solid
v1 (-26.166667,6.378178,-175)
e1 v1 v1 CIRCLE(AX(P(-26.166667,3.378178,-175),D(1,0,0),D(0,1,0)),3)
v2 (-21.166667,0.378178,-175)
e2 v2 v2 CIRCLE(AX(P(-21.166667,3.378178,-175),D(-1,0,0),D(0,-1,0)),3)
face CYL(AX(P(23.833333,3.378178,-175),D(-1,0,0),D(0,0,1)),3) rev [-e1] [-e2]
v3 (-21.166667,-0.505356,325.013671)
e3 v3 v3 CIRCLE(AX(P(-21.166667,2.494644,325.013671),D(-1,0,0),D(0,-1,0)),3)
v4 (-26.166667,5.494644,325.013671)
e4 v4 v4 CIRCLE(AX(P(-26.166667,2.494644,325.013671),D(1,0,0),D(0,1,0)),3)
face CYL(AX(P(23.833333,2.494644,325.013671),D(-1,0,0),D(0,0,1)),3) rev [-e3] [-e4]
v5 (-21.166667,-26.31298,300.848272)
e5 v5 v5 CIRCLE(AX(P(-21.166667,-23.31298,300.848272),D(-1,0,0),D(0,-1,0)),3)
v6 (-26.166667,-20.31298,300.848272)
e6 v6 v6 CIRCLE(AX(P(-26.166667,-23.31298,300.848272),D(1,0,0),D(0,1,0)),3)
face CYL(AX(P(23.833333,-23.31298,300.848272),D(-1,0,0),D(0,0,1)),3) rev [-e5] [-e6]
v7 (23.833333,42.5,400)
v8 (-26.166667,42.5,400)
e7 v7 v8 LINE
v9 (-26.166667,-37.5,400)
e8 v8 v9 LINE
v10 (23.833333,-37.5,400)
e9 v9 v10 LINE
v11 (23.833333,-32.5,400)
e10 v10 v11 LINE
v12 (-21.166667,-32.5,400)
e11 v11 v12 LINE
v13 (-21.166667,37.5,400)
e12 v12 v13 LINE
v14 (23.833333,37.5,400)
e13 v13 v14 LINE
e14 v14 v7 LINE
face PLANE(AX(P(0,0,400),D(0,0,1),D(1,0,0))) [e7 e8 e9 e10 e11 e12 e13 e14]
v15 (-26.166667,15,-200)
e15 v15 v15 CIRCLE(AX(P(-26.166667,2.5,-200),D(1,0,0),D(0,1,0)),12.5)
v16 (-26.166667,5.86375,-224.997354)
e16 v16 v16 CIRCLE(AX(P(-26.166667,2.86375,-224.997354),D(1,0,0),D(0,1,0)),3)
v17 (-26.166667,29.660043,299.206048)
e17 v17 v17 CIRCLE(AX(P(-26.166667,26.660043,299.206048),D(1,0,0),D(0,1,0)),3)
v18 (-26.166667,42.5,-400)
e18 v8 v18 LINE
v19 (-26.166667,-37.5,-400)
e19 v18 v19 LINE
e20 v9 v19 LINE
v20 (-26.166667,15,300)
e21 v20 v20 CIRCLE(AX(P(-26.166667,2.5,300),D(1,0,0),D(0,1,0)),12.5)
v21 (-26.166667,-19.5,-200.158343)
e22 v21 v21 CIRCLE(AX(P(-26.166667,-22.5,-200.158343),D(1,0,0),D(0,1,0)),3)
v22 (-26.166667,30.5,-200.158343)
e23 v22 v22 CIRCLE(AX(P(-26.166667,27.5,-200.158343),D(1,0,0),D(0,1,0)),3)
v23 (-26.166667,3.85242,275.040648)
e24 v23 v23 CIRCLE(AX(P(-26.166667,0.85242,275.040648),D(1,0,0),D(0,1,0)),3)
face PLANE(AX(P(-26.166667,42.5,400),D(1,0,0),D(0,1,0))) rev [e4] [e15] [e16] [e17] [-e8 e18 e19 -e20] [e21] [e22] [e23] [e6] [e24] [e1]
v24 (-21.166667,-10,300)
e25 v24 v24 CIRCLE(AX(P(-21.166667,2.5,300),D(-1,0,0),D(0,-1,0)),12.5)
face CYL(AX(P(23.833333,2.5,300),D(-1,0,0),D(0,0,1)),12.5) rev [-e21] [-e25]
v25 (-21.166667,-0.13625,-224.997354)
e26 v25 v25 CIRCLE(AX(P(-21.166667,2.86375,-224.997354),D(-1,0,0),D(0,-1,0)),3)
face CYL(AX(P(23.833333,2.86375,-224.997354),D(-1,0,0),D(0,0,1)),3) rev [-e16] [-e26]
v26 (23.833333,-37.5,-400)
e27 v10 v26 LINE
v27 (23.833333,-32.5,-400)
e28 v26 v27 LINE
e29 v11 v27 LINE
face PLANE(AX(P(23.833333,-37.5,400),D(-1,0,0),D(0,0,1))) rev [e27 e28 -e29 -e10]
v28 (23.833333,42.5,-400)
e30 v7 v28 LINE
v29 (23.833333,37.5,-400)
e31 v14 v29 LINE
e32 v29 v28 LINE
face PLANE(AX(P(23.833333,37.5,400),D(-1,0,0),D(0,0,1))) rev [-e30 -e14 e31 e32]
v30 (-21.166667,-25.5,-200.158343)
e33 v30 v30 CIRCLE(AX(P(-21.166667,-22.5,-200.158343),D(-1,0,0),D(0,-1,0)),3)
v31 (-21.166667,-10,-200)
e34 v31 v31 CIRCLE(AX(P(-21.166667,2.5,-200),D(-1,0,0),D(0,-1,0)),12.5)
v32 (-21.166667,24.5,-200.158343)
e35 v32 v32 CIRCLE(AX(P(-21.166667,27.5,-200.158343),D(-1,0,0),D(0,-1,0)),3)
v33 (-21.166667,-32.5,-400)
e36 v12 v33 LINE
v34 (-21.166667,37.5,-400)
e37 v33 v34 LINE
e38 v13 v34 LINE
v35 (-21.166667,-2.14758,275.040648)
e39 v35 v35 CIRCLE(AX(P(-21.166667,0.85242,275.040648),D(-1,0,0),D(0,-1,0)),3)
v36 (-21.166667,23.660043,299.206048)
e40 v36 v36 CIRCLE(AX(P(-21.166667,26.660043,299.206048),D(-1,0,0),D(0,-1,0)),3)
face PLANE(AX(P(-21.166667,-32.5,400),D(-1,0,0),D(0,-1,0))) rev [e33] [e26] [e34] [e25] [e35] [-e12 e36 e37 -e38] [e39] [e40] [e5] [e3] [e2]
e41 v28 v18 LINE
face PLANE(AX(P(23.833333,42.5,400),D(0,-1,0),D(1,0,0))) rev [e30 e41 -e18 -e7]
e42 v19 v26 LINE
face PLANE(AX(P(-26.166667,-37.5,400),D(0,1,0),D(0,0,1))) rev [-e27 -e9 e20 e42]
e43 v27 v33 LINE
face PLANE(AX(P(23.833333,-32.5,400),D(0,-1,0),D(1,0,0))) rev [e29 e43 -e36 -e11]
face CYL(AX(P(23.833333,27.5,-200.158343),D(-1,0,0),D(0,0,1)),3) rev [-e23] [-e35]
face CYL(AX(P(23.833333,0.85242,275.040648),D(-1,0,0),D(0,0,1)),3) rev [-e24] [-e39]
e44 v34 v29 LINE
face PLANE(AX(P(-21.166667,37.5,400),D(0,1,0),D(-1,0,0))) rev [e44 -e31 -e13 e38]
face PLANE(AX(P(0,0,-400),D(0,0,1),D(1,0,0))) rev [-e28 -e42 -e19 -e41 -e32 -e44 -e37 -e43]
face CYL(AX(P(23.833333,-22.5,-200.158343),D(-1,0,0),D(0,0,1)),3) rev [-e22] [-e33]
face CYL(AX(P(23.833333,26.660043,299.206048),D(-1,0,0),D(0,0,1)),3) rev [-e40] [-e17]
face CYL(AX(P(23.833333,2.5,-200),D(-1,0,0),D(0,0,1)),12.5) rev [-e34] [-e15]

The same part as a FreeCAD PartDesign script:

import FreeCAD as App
import Part
import Sketcher

V = App.Vector


def add_polygon(sketch, points):
    """Adds a closed chain of lines whose ends are joined by coincident constraints."""
    first, n = sketch.GeometryCount, len(points)
    for a, b in zip(points, points[1:] + points[:1]):
        sketch.addGeometry(Part.LineSegment(App.Vector(*a, 0), App.Vector(*b, 0)), False)
    for i in range(n):
        sketch.addConstraint(Sketcher.Constraint("Coincident", first + i, 2, first + (i + 1) % n, 1))

doc = App.newDocument("Part")
body = doc.addObject("PartDesign::Body", "Body")

sketch1 = doc.addObject("Sketcher::SketchObject", "Sketch")
body.addObject(sketch1)
sketch1.AttachmentSupport = (doc.XY_Plane, [""])
sketch1.MapMode = "FlatFace"
add_polygon(sketch1, [(24, 42), (-26, 42), (-26, -38), (24, -38), (24, -32), (-21, -32), (-21, 38), (24, 38)])
sketch1.addConstraint([
    Sketcher.Constraint("Horizontal", 0),
    Sketcher.Constraint("Vertical", 1),
    Sketcher.Constraint("Horizontal", 2),
    Sketcher.Constraint("Vertical", 3),
    Sketcher.Constraint("Horizontal", 4),
    Sketcher.Constraint("Vertical", 5),
    Sketcher.Constraint("Horizontal", 6),
    Sketcher.Constraint("Vertical", 7),
    Sketcher.Constraint("Symmetric", 2, 2, 6, 2, -1),
    Sketcher.Constraint("Equal", 3, 7),
    Sketcher.Constraint("DistanceX", 0, 2, 0, 1, 50.0),
    Sketcher.Constraint("DistanceX", 4, 2, 4, 1, 45.0),
    Sketcher.Constraint("DistanceY", 1, 2, 1, 1, 80.0),
    Sketcher.Constraint("DistanceY", 3, 1, 3, 2, 5.0),
    Sketcher.Constraint("DistanceX", 0, 2, -1, 1, 26.166667),
])
pad1 = doc.addObject("PartDesign::Pad", "Pad")
body.addObject(pad1)
pad1.Profile = sketch1
pad1.Length = 800
pad1.Midplane = True

sketch2 = doc.addObject("Sketcher::SketchObject", "Sketch001")
body.addObject(sketch2)
sketch2.AttachmentSupport = (doc.YZ_Plane, [""])
sketch2.MapMode = "FlatFace"
sketch2.AttachmentOffset = App.Placement(V(0, 0, -26.166667), App.Rotation())
sketch2.addGeometry([
    Part.Circle(V(2, -200, 0), V(0, 0, 1), 12),
    Part.Circle(V(2, 300, 0), V(0, 0, 1), 12),
], False)
sketch2.addConstraint([
    Sketcher.Constraint("Equal", 0, 1),
    Sketcher.Constraint("Vertical", 0, 3, 1, 3),
    Sketcher.Constraint("Diameter", 0, 25.0),
    Sketcher.Constraint("DistanceY", 0, 3, -1, 1, 200.0),
    Sketcher.Constraint("DistanceY", -1, 1, 1, 3, 300.0),
    Sketcher.Constraint("DistanceX", -1, 1, 0, 3, 2.5),
])
pocket1 = doc.addObject("PartDesign::Pocket", "Pocket")
body.addObject(pocket1)
pocket1.Profile = sketch2
pocket1.Type = "ThroughAll"
pocket1.Midplane = True

sketch3 = doc.addObject("Sketcher::SketchObject", "Sketch002")
body.addObject(sketch3)
sketch3.AttachmentSupport = (doc.YZ_Plane, [""])
sketch3.MapMode = "FlatFace"
sketch3.AttachmentOffset = App.Placement(V(0, 0, -26.166667), App.Rotation())
sketch3.addGeometry([
    Part.Circle(V(27.5, -200.2, 0), V(0, 0, 1), 3),
    Part.Circle(V(-22.5, -200.2, 0), V(0, 0, 1), 3),
    Part.Circle(V(3.4, -175, 0), V(0, 0, 1), 3),
    Part.Circle(V(2.9, -225, 0), V(0, 0, 1), 3),
], False)
sketch3.addConstraint([
    Sketcher.Constraint("Equal", 0, 1),
    Sketcher.Constraint("Equal", 1, 2),
    Sketcher.Constraint("Equal", 2, 3),
    Sketcher.Constraint("Horizontal", 0, 3, 1, 3),
    Sketcher.Constraint("Diameter", 0, 6.0),
    Sketcher.Constraint("DistanceY", 2, 3, -1, 1, 175.0),
    Sketcher.Constraint("DistanceX", 1, 3, 0, 3, 50.0),
    Sketcher.Constraint("DistanceX", -1, 1, 0, 3, 27.5),
    Sketcher.Constraint("DistanceX", -1, 1, 3, 3, 2.86375),
    Sketcher.Constraint("DistanceY", 3, 3, 0, 3, 24.83901),
    Sketcher.Constraint("DistanceY", 0, 3, -1, 1, 200.158343),
    Sketcher.Constraint("DistanceX", -1, 1, 2, 3, 3.378178),
])
pocket2 = doc.addObject("PartDesign::Pocket", "Pocket001")
body.addObject(pocket2)
pocket2.Profile = sketch3
pocket2.Type = "ThroughAll"
pocket2.Midplane = True

sketch4 = doc.addObject("Sketcher::SketchObject", "Sketch003")
body.addObject(sketch4)
sketch4.AttachmentSupport = (doc.YZ_Plane, [""])
sketch4.MapMode = "FlatFace"
sketch4.AttachmentOffset = App.Placement(V(0, 0, -26.166667), App.Rotation())
sketch4.addGeometry([
    Part.Circle(V(26.7, 299.2, 0), V(0, 0, 1), 3),
    Part.Circle(V(2.5, 325, 0), V(0, 0, 1), 3),
    Part.Circle(V(-23.3, 300.8, 0), V(0, 0, 1), 3),
    Part.Circle(V(0.9, 275, 0), V(0, 0, 1), 3),
], False)
sketch4.addConstraint([
    Sketcher.Constraint("Equal", 0, 1),
    Sketcher.Constraint("Equal", 1, 2),
    Sketcher.Constraint("Equal", 2, 3),
    Sketcher.Constraint("Diameter", 0, 6.0),
    Sketcher.Constraint("DistanceX", 1, 3, 0, 3, 24.1654),
    Sketcher.Constraint("DistanceY", 2, 3, 1, 3, 24.1654),
    Sketcher.Constraint("DistanceX", 2, 3, 3, 3, 24.1654),
    Sketcher.Constraint("DistanceY", 3, 3, 0, 3, 24.1654),
    Sketcher.Constraint("DistanceY", -1, 1, 1, 3, 325.013671),
    Sketcher.Constraint("DistanceX", 2, 3, -1, 1, 23.31298),
    Sketcher.Constraint("DistanceX", -1, 1, 0, 3, 26.660043),
    Sketcher.Constraint("DistanceY", -1, 1, 0, 3, 299.206048),
])
pocket3 = doc.addObject("PartDesign::Pocket", "Pocket002")
body.addObject(pocket3)
pocket3.Profile = sketch4
pocket3.Type = "ThroughAll"
pocket3.Midplane = True

doc.recompute()
